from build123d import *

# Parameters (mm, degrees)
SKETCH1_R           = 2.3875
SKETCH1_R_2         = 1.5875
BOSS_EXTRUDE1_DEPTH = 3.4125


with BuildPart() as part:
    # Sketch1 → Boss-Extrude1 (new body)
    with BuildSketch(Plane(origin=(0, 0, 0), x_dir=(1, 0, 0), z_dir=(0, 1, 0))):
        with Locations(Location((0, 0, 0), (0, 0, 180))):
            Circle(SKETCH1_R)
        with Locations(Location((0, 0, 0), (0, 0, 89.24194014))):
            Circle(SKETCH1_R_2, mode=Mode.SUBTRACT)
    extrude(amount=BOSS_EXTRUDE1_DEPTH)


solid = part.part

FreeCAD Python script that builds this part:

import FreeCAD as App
import Part
import Sketcher
Q = App.Units.Quantity

doc = App.newDocument("Part")
body = doc.addObject("PartDesign::Body", "Body")

# Sketch on XZ plane
sketch1 = doc.addObject("Sketcher::SketchObject", "Sketch")
body.addObject(sketch1)
sketch1.AttachmentSupport = (doc.XZ_Plane, [""])
sketch1.MapMode = "FlatFace"
sketch1.addGeometry([
    Part.Circle(App.Vector(0, 0, 0), App.Vector(0, 0, 1), 2.4),
    Part.Circle(App.Vector(0, 0, 0), App.Vector(0, 0, 1), 1.6),
], False)
sketch1.addConstraint([
    Sketcher.Constraint("Coincident", 0, 3, -1, 1),
    Sketcher.Constraint("Coincident", 1, 3, -1, 1),
    Sketcher.Constraint("Diameter", 1, Q("0.125 in")),
    Sketcher.Constraint("Diameter", 0, Q("4.775 mm")),
])
pad1 = doc.addObject("PartDesign::Pad", "Pad")
body.addObject(pad1)
pad1.Profile = sketch1
pad1.Length = 3.4125
pad1.Reversed = True

doc.recompute()
